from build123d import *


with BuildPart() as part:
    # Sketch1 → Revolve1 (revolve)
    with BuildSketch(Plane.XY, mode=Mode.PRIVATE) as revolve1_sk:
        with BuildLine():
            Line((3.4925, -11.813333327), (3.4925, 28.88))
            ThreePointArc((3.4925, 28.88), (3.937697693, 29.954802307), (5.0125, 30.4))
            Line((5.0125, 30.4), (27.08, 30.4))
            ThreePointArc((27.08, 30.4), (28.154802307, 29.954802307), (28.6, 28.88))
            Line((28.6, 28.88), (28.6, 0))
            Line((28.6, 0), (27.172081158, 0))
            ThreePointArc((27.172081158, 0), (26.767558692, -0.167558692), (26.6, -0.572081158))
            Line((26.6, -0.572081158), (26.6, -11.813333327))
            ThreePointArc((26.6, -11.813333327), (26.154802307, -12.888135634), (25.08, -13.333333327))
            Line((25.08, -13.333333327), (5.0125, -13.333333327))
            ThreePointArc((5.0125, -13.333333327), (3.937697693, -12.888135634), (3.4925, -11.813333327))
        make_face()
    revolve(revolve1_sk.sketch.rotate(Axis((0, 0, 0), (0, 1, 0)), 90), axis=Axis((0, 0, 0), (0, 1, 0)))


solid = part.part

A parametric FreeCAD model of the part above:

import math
import FreeCAD as App
import Part
import Sketcher

doc = App.newDocument("Part")
body = doc.addObject("PartDesign::Body", "Body")

# Sketch on XY plane
sketch1 = body.newObject("Sketcher::SketchObject", "Sketch")
sketch1.AttachmentSupport = (doc.getObject("XY_Plane"), [""])
sketch1.MapMode = "FlatFace"
sketch1.addGeometry(Part.LineSegment(App.Vector(3.4925, 28.88, 0), App.Vector(3.4925, -11.813333, 0)), False)
sketch1.addGeometry(Part.ArcOfCircle(Part.Circle(App.Vector(5.0125, -11.813333, 0), App.Vector(0, 0, 1), 1.52), math.radians(-180), math.radians(-90)), False)
sketch1.addGeometry(Part.LineSegment(App.Vector(5.0125, -13.333333, 0), App.Vector(25.08, -13.333333, 0)), False)
sketch1.addGeometry(Part.ArcOfCircle(Part.Circle(App.Vector(25.08, -11.813333, 0), App.Vector(0, 0, 1), 1.52), math.radians(-90), math.radians(0)), False)
sketch1.addGeometry(Part.LineSegment(App.Vector(26.6, -11.813333, 0), App.Vector(26.6, -0.572081, 0)), False)
sketch1.addGeometry(Part.ArcOfCircle(Part.Circle(App.Vector(27.172081, -0.572081, 0), App.Vector(0, 0, 1), 0.572081), math.radians(90), math.radians(180)), False)
sketch1.addGeometry(Part.LineSegment(App.Vector(27.172081, 0, 0), App.Vector(28.6, 0, 0)), False)
sketch1.addGeometry(Part.LineSegment(App.Vector(28.6, 0, 0), App.Vector(28.6, 28.88, 0)), False)
sketch1.addGeometry(Part.ArcOfCircle(Part.Circle(App.Vector(27.08, 28.88, 0), App.Vector(0, 0, 1), 1.52), math.radians(0), math.radians(90)), False)
sketch1.addGeometry(Part.LineSegment(App.Vector(27.08, 30.4, 0), App.Vector(5.0125, 30.4, 0)), False)
sketch1.addGeometry(Part.ArcOfCircle(Part.Circle(App.Vector(5.0125, 28.88, 0), App.Vector(0, 0, 1), 1.52), math.radians(90), math.radians(180)), False)
sketch1.addConstraint(Sketcher.Constraint("Tangent", 0, 2, 1, 1))
sketch1.addConstraint(Sketcher.Constraint("Tangent", 1, 2, 2, 1))
sketch1.addConstraint(Sketcher.Constraint("Tangent", 2, 2, 3, 1))
sketch1.addConstraint(Sketcher.Constraint("Tangent", 3, 2, 4, 1))
sketch1.addConstraint(Sketcher.Constraint("Tangent", 4, 2, 5, 2))
sketch1.addConstraint(Sketcher.Constraint("Tangent", 5, 1, 6, 1))
sketch1.addConstraint(Sketcher.Constraint("Coincident", 6, 2, 7, 1))
sketch1.addConstraint(Sketcher.Constraint("Tangent", 7, 2, 8, 1))
sketch1.addConstraint(Sketcher.Constraint("Tangent", 8, 2, 9, 1))
sketch1.addConstraint(Sketcher.Constraint("Tangent", 9, 2, 10, 1))
sketch1.addConstraint(Sketcher.Constraint("Tangent", 10, 2, 0, 1))
sketch1.addConstraint(Sketcher.Constraint("Vertical", 0))
sketch1.addConstraint(Sketcher.Constraint("Horizontal", 2))
sketch1.addConstraint(Sketcher.Constraint("Vertical", 4))
sketch1.addConstraint(Sketcher.Constraint("Horizontal", 6))
sketch1.addConstraint(Sketcher.Constraint("Vertical", 7))
sketch1.addConstraint(Sketcher.Constraint("Horizontal", 9))
sketch1.addConstraint(Sketcher.Constraint("Equal", 1, 3))
sketch1.addConstraint(Sketcher.Constraint("Equal", 3, 8))
sketch1.addConstraint(Sketcher.Constraint("Equal", 8, 10))
sketch1.addConstraint(Sketcher.Constraint("PointOnObject", 5, 1, -1))
sketch1.addConstraint(Sketcher.Constraint("Radius", 1, 1.52))
sketch1.addConstraint(Sketcher.Constraint("DistanceX", 3, 3, 8, 3, 2.0))
sketch1.addConstraint(Sketcher.Constraint("DistanceY", 7, 1, 7, 2, 28.88))
sketch1.addConstraint(Sketcher.Constraint("DistanceX", -1, 1, 3, 2, 26.6))
sketch1.addConstraint(Sketcher.Constraint("Radius", 5, 0.572081))
sketch1.addConstraint(Sketcher.Constraint("DistanceX", 2, 1, 2, 2, 20.0675))
sketch1.addConstraint(Sketcher.Constraint("DistanceY", 0, 2, 0, 1, 40.693333))
revolution = body.newObject("PartDesign::Revolution", "Revolution")
revolution.Profile = sketch1
revolution.ReferenceAxis = (sketch1, ["V_Axis"])
revolution.Angle = 360

doc.recompute()
